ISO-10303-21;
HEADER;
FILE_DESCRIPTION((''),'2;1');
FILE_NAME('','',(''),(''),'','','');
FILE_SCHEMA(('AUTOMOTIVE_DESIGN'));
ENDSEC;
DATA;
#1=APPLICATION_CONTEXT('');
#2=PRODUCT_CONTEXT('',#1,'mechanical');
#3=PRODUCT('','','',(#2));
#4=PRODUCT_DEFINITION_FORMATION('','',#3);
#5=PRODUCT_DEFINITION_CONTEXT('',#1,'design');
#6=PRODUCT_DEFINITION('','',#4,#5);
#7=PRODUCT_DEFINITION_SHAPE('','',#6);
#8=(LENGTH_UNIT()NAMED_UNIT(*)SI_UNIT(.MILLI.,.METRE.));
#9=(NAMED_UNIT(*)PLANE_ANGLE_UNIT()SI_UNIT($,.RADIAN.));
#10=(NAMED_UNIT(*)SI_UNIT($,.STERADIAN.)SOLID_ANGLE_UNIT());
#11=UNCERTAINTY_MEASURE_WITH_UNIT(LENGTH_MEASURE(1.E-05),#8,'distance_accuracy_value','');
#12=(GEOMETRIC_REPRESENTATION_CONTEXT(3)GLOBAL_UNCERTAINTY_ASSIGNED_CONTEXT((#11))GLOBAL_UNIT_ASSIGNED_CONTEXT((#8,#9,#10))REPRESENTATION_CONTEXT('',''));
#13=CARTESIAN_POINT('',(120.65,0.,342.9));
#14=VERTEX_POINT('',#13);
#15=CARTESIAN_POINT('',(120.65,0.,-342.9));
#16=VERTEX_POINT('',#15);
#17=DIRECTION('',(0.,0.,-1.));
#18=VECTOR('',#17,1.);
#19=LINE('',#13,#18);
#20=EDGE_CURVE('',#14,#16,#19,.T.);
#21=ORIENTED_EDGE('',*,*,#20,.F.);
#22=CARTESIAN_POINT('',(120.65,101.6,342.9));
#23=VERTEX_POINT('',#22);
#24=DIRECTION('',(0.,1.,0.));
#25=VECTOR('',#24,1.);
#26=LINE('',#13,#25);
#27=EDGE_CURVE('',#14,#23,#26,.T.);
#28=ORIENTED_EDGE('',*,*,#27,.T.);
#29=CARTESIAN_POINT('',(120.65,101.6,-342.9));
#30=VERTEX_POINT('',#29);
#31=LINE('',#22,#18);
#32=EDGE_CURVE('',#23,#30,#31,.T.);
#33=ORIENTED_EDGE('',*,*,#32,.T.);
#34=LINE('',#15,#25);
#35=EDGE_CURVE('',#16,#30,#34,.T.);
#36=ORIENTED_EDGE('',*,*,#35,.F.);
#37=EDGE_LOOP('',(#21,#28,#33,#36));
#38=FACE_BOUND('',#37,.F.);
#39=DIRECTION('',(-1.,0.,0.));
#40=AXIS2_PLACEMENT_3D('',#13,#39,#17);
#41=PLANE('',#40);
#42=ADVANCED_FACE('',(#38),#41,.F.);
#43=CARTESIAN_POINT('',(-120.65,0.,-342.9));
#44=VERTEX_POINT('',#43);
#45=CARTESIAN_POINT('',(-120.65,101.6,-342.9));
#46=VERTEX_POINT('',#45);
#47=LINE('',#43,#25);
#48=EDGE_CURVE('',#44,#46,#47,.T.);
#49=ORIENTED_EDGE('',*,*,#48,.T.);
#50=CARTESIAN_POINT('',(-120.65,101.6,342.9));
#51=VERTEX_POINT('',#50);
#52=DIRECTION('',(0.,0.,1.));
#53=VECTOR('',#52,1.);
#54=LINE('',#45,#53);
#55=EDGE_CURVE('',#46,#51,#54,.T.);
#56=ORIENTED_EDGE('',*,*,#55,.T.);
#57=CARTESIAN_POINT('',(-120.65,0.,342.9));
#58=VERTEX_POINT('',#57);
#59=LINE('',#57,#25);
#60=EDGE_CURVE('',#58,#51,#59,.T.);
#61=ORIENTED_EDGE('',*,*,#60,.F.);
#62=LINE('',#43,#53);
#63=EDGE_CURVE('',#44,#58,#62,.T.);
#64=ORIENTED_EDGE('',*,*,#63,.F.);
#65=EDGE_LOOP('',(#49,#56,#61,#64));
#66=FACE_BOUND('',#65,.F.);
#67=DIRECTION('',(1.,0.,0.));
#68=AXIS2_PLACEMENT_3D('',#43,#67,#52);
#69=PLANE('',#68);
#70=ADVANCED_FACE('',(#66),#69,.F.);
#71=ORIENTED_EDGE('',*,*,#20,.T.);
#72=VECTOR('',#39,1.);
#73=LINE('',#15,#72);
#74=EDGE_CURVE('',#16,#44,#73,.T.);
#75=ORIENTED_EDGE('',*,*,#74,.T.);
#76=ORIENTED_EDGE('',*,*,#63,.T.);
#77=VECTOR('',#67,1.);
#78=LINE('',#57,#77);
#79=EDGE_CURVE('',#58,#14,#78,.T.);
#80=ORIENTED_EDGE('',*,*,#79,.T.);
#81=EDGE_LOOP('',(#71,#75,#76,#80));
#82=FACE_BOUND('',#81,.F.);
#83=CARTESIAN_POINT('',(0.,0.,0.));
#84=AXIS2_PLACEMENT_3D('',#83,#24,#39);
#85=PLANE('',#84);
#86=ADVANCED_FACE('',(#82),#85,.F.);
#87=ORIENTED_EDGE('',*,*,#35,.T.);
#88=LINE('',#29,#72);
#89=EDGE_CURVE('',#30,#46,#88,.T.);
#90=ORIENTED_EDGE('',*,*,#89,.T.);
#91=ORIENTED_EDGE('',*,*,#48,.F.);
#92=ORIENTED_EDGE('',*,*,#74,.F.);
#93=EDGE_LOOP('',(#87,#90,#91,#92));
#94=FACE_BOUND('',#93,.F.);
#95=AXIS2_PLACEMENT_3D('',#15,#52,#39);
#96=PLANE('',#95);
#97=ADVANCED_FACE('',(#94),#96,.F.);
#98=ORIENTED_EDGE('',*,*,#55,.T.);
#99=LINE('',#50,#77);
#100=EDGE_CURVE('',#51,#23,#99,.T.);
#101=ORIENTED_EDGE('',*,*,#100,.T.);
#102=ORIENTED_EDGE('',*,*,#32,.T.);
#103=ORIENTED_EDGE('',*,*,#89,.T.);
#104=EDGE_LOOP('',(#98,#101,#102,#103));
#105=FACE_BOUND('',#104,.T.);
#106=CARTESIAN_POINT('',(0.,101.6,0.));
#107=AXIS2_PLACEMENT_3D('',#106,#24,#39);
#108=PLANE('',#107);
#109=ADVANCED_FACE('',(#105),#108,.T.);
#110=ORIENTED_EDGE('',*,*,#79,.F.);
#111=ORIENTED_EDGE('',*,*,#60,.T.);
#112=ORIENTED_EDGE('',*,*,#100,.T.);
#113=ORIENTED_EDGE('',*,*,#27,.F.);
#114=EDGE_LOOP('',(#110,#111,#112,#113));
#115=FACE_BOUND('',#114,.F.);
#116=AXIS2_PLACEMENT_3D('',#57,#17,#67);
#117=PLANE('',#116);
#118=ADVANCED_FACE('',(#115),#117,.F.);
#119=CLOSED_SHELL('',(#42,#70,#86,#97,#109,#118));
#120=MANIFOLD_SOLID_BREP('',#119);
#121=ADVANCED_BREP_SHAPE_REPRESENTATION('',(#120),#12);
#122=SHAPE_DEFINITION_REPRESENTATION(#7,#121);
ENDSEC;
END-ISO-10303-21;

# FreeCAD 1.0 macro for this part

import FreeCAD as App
import Part
import Sketcher
Q = App.Units.Quantity

doc = App.newDocument("Part")
body = doc.addObject("PartDesign::Body", "Body")

# Sketch on XZ plane
sketch1 = body.newObject("Sketcher::SketchObject", "Sketch")
sketch1.AttachmentSupport = (doc.getObject("XZ_Plane"), [""])
sketch1.MapMode = "FlatFace"
sketch1.addGeometry([
    Part.LineSegment(App.Vector(-120.65, -342.9, 0), App.Vector(-120.65, 342.9, 0)),
    Part.LineSegment(App.Vector(-120.65, 342.9, 0), App.Vector(120.65, 342.9, 0)),
    Part.LineSegment(App.Vector(120.65, 342.9, 0), App.Vector(120.65, -342.9, 0)),
    Part.LineSegment(App.Vector(120.65, -342.9, 0), App.Vector(-120.65, -342.9, 0)),
], False)
sketch1.addConstraint([
    Sketcher.Constraint("Coincident", 0, 2, 1, 1),
    Sketcher.Constraint("Coincident", 1, 2, 2, 1),
    Sketcher.Constraint("Coincident", 2, 2, 3, 1),
    Sketcher.Constraint("Coincident", 3, 2, 0, 1),
    Sketcher.Constraint("Vertical", 0),
    Sketcher.Constraint("Horizontal", 1),
    Sketcher.Constraint("Vertical", 2),
    Sketcher.Constraint("Horizontal", 3),
    Sketcher.Constraint("Symmetric", 0, 2, 2, 2, -1, 1),
    Sketcher.Constraint("DistanceY", 0, 1, 0, 2, Q("27 in")),
    Sketcher.Constraint("DistanceX", 1, 1, 1, 2, Q("9.5 in")),
])
pad1 = body.newObject("PartDesign::Pad", "Pad")
pad1.Profile = sketch1
pad1.Length = Q("4 in")
pad1.Reversed = True

doc.recompute()
